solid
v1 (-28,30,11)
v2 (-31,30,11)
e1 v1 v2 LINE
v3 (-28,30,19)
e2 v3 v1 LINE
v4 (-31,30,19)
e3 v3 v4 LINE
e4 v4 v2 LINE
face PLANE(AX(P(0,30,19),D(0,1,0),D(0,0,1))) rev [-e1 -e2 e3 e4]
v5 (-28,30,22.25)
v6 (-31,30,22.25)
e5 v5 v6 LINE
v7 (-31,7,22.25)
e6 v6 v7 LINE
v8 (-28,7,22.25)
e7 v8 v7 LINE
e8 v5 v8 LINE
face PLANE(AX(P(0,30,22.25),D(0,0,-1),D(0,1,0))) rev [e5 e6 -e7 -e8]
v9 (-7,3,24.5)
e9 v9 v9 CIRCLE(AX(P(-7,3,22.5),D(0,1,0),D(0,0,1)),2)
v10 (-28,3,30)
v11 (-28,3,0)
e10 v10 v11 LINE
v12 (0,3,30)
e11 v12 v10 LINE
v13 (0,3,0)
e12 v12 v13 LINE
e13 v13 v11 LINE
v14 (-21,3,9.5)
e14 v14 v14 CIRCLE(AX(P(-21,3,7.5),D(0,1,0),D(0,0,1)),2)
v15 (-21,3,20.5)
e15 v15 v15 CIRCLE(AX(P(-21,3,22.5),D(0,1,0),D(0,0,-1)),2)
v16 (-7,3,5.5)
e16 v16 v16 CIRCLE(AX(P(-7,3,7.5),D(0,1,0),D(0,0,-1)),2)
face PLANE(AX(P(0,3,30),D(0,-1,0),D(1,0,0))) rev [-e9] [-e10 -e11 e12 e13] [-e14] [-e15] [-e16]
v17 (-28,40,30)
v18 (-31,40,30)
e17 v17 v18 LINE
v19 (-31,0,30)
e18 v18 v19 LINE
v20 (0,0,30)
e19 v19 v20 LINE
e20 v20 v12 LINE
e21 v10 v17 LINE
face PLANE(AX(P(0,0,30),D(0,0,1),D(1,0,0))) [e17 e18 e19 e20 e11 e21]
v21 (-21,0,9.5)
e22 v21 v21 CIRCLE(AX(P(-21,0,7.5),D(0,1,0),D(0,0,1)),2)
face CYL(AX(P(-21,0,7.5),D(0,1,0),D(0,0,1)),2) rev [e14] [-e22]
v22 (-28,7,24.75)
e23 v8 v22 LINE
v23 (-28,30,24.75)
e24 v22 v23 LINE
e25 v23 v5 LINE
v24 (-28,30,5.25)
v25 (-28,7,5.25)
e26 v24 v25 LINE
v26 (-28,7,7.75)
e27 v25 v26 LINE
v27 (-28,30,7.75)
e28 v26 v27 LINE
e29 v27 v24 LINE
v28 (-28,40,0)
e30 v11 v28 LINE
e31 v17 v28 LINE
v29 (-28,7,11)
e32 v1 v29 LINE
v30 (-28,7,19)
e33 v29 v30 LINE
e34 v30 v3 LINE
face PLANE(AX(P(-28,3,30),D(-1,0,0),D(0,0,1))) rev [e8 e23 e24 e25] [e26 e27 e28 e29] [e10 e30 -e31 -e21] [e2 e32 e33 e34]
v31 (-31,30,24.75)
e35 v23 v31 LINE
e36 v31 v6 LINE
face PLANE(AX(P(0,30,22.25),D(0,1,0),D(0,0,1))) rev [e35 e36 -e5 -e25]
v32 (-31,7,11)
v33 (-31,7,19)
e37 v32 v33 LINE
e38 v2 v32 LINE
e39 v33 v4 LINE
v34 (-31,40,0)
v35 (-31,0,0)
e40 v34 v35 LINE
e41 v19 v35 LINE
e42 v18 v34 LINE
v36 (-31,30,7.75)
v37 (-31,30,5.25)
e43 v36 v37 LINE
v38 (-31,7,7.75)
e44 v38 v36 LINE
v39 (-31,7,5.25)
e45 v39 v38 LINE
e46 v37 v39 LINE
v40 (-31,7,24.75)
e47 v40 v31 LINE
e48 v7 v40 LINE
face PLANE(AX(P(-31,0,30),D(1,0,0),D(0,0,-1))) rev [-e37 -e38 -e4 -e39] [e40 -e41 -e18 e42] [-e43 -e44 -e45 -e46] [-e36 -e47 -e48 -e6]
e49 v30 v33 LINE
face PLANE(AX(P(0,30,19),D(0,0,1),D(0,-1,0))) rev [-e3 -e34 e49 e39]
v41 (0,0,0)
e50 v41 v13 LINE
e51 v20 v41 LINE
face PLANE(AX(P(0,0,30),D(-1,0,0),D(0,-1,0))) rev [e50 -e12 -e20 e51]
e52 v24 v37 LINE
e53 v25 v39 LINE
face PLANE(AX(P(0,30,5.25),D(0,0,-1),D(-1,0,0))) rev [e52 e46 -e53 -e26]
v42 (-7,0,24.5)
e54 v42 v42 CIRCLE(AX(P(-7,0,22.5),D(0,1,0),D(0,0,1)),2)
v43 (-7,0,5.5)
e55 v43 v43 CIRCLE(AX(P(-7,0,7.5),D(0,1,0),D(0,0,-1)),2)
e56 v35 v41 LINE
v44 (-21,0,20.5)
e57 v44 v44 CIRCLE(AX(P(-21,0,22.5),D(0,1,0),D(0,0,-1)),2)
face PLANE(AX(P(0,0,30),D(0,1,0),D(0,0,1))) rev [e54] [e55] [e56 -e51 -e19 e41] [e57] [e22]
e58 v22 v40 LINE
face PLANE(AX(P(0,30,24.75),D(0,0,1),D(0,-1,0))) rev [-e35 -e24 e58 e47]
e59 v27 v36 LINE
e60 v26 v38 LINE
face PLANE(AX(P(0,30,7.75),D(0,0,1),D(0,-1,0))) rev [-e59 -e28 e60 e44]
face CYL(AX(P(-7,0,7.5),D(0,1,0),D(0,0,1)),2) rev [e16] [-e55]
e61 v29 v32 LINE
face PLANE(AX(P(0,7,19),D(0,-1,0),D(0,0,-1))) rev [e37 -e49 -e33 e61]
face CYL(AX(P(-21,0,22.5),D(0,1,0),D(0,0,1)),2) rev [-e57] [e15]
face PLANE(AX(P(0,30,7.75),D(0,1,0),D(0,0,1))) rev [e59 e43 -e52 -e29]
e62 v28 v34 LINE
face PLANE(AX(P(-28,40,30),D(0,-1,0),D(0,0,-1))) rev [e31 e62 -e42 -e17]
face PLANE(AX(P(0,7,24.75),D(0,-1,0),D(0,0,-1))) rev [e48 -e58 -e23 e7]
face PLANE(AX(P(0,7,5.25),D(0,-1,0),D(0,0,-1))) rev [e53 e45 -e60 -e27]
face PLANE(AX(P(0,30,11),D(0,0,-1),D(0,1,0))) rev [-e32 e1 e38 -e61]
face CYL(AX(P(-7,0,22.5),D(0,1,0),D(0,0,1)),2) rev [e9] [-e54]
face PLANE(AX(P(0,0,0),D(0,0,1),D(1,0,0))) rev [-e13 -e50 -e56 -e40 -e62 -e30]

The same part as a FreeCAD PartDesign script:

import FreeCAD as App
import Part
import Sketcher

V = App.Vector
Q = App.Units.Quantity


def add_polygon(sketch, points):
    """Adds a closed chain of lines whose ends are joined by coincident constraints."""
    first, n = sketch.GeometryCount, len(points)
    for a, b in zip(points, points[1:] + points[:1]):
        sketch.addGeometry(Part.LineSegment(App.Vector(*a, 0), App.Vector(*b, 0)), False)
    for i in range(n):
        sketch.addConstraint(Sketcher.Constraint("Coincident", first + i, 2, first + (i + 1) % n, 1))

doc = App.newDocument("Part")
body = doc.addObject("PartDesign::Body", "Body")

sketch1 = doc.addObject("Sketcher::SketchObject", "Sketch")
body.addObject(sketch1)
sketch1.AttachmentSupport = (doc.XY_Plane, [""])
sketch1.MapMode = "FlatFace"
add_polygon(sketch1, [(-31, 0), (0, 0), (0, 3), (-28, 3), (-28, 40), (-31, 40)])
sketch1.addConstraint(Sketcher.Constraint("Horizontal", 0))
sketch1.addConstraint(Sketcher.Constraint("Vertical", 1))
sketch1.addConstraint(Sketcher.Constraint("Horizontal", 2))
sketch1.addConstraint(Sketcher.Constraint("Vertical", 3))
sketch1.addConstraint(Sketcher.Constraint("Horizontal", 4))
sketch1.addConstraint(Sketcher.Constraint("Vertical", 5))
sketch1.addConstraint(Sketcher.Constraint("Coincident", 0, 2, -1, 1))
sketch1.addConstraint(Sketcher.Constraint("Equal", 4, 1))
sketch1.addConstraint(Sketcher.Constraint("DistanceX", 0, 1, 0, 2, Q("31 mm")))
sketch1.addConstraint(Sketcher.Constraint("DistanceX", 2, 2, 2, 1, Q("28 mm")))
sketch1.addConstraint(Sketcher.Constraint("DistanceY", 3, 1, 3, 2, Q("37 mm")))
pad1 = doc.addObject("PartDesign::Pad", "Pad")
body.addObject(pad1)
pad1.Profile = sketch1
pad1.Length = 30

sketch2 = doc.addObject("Sketcher::SketchObject", "Sketch001")
body.addObject(sketch2)
sketch2.AttachmentSupport = (doc.XZ_Plane, [""])
sketch2.MapMode = "FlatFace"
sketch2.AttachmentOffset = App.Placement(V(0, 0, -3), App.Rotation())
sketch2.addGeometry(Part.Circle(V(-7, 22.5, 0), V(0, 0, 1), 2), False)
sketch2.addGeometry(Part.Circle(V(-21, 22.5, 0), V(0, 0, 1), 2), False)
sketch2.addGeometry(Part.Circle(V(-7, 7.5, 0), V(0, 0, 1), 2), False)
sketch2.addGeometry(Part.Circle(V(-21, 7.5, 0), V(0, 0, 1), 2), False)
sketch2.addConstraint(Sketcher.Constraint("Equal", 0, 1))
sketch2.addConstraint(Sketcher.Constraint("Equal", 1, 2))
sketch2.addConstraint(Sketcher.Constraint("Equal", 2, 3))
sketch2.addConstraint(Sketcher.Constraint("Horizontal", 0, 3, 1, 3))
sketch2.addConstraint(Sketcher.Constraint("Horizontal", 2, 3, 3, 3))
sketch2.addConstraint(Sketcher.Constraint("Vertical", 0, 3, 2, 3))
sketch2.addConstraint(Sketcher.Constraint("Vertical", 1, 3, 3, 3))
sketch2.addConstraint(Sketcher.Constraint("Diameter", 0, Q("4 mm")))
sketch2.addConstraint(Sketcher.Constraint("DistanceX", 0, 3, -1, 1, Q("7 mm")))
sketch2.addConstraint(Sketcher.Constraint("DistanceX", 1, 3, -1, 1, Q("21 mm")))
sketch2.addConstraint(Sketcher.Constraint("DistanceY", 2, 3, 0, 3, Q("15 mm")))
sketch2.addConstraint(Sketcher.Constraint("DistanceY", -1, 1, 0, 3, Q("22.5 mm")))
pocket1 = doc.addObject("PartDesign::Pocket", "Pocket")
body.addObject(pocket1)
pocket1.Profile = sketch2
pocket1.Type = "ThroughAll"
pocket1.Reversed = True

sketch3 = doc.addObject("Sketcher::SketchObject", "Sketch002")
body.addObject(sketch3)
sketch3.AttachmentSupport = (doc.YZ_Plane, [""])
sketch3.MapMode = "FlatFace"
sketch3.AttachmentOffset = App.Placement(V(0, 0, -31), App.Rotation())
add_polygon(sketch3, [(30, 22.2), (7, 22.2), (7, 24.8), (30, 24.8)])
add_polygon(sketch3, [(30, 11), (7, 11), (7, 19), (30, 19)])
add_polygon(sketch3, [(30, 5.2), (7, 5.2), (7, 7.8), (30, 7.8)])
sketch3.addConstraint(Sketcher.Constraint("Horizontal", 0))
sketch3.addConstraint(Sketcher.Constraint("Vertical", 1))
sketch3.addConstraint(Sketcher.Constraint("Horizontal", 2))
sketch3.addConstraint(Sketcher.Constraint("Vertical", 3))
sketch3.addConstraint(Sketcher.Constraint("Horizontal", 4))
sketch3.addConstraint(Sketcher.Constraint("Vertical", 5))
sketch3.addConstraint(Sketcher.Constraint("Horizontal", 6))
sketch3.addConstraint(Sketcher.Constraint("Vertical", 7))
sketch3.addConstraint(Sketcher.Constraint("Horizontal", 8))
sketch3.addConstraint(Sketcher.Constraint("Vertical", 9))
sketch3.addConstraint(Sketcher.Constraint("Horizontal", 10))
sketch3.addConstraint(Sketcher.Constraint("Vertical", 11))
sketch3.addConstraint(Sketcher.Constraint("Vertical", 1, 2, 4, 2))
sketch3.addConstraint(Sketcher.Constraint("Vertical", 3, 2, 6, 2))
sketch3.addConstraint(Sketcher.Constraint("Vertical", 5, 2, 8, 2))
sketch3.addConstraint(Sketcher.Constraint("Vertical", 7, 2, 10, 2))
sketch3.addConstraint(Sketcher.Constraint("Equal", 3, 9))
sketch3.addConstraint(Sketcher.Constraint("DistanceX", 0, 2, 0, 1, Q("23 mm")))
sketch3.addConstraint(Sketcher.Constraint("DistanceY", 5, 1, 5, 2, Q("8 mm")))
sketch3.addConstraint(Sketcher.Constraint("DistanceY", 1, 1, 1, 2, Q("2.5 mm")))
sketch3.addConstraint(Sketcher.Constraint("DistanceX", -1, 1, 0, 2, Q("7 mm")))
sketch3.addConstraint(Sketcher.Constraint("DistanceY", -1, 1, 4, 2, Q("11 mm")))
sketch3.addConstraint(Sketcher.Constraint("DistanceY", 8, 2, 0, 2, Q("17 mm")))
sketch3.addConstraint(Sketcher.Constraint("DistanceY", -1, 1, 0, 2, Q("22.25 mm")))
pocket2 = doc.addObject("PartDesign::Pocket", "Pocket001")
body.addObject(pocket2)
pocket2.Profile = sketch3
pocket2.Type = "ThroughAll"
pocket2.Reversed = True

doc.recompute()
